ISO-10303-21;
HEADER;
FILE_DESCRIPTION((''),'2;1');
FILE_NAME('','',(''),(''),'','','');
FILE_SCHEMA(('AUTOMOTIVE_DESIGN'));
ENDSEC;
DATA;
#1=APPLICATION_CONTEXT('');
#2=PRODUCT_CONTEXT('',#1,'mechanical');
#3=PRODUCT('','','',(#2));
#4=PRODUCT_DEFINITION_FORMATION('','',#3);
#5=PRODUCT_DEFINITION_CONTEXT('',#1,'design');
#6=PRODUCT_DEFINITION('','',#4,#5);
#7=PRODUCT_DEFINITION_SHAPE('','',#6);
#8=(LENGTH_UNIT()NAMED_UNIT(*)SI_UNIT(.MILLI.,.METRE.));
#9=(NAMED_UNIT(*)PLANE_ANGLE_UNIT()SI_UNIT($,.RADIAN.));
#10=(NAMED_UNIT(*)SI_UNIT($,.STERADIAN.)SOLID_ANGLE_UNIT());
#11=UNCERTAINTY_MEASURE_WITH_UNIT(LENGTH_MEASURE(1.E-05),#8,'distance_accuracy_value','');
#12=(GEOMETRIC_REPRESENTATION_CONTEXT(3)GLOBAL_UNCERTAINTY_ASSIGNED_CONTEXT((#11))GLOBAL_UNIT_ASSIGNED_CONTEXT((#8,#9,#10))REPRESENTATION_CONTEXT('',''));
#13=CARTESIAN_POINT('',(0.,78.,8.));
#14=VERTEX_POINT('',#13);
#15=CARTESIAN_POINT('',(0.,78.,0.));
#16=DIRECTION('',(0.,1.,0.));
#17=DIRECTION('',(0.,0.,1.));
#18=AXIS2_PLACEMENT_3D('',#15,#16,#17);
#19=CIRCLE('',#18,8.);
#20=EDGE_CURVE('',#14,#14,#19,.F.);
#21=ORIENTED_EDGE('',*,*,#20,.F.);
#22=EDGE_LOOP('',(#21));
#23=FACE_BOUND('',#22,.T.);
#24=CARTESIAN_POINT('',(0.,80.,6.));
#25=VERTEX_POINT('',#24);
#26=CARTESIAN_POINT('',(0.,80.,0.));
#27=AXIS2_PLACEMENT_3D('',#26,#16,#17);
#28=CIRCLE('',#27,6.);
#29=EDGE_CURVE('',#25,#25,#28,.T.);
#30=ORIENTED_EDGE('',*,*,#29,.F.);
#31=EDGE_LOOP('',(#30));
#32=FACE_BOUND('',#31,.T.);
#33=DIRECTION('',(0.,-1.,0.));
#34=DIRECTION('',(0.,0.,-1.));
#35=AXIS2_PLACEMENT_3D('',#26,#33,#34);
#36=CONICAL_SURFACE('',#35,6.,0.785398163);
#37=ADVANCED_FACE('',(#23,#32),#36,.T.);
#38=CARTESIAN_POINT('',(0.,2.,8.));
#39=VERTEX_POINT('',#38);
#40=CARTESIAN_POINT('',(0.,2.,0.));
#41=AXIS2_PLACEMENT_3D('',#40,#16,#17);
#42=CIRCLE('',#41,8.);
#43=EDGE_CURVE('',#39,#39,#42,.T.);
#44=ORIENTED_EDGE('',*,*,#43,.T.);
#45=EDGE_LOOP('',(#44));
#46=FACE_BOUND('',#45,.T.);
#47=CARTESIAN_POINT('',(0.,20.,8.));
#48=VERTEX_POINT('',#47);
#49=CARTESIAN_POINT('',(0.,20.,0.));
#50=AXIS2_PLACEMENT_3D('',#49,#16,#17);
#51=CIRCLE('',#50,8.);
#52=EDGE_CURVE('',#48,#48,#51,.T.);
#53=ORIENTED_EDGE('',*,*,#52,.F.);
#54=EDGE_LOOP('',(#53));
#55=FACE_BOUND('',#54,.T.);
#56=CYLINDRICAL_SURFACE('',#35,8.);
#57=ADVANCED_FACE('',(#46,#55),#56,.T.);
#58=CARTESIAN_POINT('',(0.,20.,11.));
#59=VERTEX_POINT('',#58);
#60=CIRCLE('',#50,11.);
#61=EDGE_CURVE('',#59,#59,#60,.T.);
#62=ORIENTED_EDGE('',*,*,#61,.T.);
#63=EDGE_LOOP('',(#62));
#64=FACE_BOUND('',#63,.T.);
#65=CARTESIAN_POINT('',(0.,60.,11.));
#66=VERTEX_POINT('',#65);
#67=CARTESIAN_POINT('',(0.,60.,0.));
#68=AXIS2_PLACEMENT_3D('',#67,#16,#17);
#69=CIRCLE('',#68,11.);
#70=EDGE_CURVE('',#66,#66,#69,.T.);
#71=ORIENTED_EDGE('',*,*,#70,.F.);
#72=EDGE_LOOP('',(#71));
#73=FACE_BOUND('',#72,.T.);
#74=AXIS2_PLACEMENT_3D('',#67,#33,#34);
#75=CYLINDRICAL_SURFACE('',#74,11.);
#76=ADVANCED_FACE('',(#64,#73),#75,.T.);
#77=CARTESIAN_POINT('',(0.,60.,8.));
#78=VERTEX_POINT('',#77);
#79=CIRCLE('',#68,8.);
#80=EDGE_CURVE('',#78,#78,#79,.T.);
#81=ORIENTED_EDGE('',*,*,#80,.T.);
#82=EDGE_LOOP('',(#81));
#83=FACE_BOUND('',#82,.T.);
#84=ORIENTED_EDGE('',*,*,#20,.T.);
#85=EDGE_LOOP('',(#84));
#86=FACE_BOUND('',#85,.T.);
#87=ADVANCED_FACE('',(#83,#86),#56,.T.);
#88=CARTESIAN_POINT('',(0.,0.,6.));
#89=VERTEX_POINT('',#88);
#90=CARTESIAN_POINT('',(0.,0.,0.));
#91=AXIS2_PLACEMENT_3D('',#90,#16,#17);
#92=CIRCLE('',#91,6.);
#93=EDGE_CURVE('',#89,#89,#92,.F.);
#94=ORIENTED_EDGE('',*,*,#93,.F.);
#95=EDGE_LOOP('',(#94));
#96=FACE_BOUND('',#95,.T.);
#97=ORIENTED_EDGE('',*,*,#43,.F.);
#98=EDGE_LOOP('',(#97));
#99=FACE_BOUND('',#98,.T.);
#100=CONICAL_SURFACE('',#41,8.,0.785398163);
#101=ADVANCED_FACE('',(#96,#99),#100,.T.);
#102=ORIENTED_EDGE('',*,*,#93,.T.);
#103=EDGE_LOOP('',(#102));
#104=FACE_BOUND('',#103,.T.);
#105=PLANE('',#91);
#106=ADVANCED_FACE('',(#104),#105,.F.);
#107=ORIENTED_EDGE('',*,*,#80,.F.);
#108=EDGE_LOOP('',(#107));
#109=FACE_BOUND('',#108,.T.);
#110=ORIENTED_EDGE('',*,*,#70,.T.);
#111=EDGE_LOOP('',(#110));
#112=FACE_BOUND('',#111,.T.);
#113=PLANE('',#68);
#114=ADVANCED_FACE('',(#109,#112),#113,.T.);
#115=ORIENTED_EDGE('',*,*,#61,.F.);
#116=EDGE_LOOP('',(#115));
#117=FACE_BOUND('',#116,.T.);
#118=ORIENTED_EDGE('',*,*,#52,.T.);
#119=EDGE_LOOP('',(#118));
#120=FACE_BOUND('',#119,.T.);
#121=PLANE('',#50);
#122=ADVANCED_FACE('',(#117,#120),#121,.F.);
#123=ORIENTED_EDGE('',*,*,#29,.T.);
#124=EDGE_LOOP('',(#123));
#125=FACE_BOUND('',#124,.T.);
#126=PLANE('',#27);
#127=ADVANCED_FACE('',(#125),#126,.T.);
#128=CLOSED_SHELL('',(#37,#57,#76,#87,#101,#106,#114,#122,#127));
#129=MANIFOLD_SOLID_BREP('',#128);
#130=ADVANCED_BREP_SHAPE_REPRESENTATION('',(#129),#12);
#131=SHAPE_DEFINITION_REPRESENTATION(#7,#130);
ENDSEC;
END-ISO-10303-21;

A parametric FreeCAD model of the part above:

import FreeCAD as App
import Part
import Sketcher
from FreeCAD import Vector
Q = App.Units.Quantity


def edges_at(feature, points):
    """Names of the edges that pass closest to the given points."""
    edges = feature.Shape.Edges
    near = lambda p: min(range(len(edges)), key=lambda i: edges[i].distToShape(Part.Vertex(*p))[0])
    return sorted({f"Edge{near(p) + 1}" for p in points})

doc = App.newDocument("Part")
params = doc.addObject("Spreadsheet::Sheet", "Params")
for row, (alias, value) in enumerate([
    ("sketch1_diameter", "16 mm"),
    ("pad1_length", "80 mm"),
    ("sketch2_diameter", "22 mm"),
    ("pad2_length", "40 mm"),
    ("chamfer_size", "2 mm"),
    ("chamfer2_size", "2 mm"),
], start=1):
    params.set(f"A{row}", alias)
    params.set(f"B{row}", "=" + value)
    params.setAlias(f"B{row}", alias)

body = doc.addObject("PartDesign::Body", "Body")

sketch1 = body.newObject("Sketcher::SketchObject", "Sketch")
sketch1.AttachmentSupport = (doc.getObject("XZ_Plane"), [""])
sketch1.MapMode = "FlatFace"
sketch1.addGeometry(Part.Circle(Vector(0, 0, 0), Vector(0, 0, 1), 8), False)
sketch1.addConstraint([
    Sketcher.Constraint("Coincident", 0, 3, -1, 1),
    Sketcher.Constraint("Diameter", 0, Q("16 mm")),
])
sketch1.setExpression("Constraints[1]", "Params.sketch1_diameter")
pad1 = body.newObject("PartDesign::Pad", "Pad")
pad1.Profile = sketch1
pad1.setExpression("Length", "Params.pad1_length")
pad1.Reversed = True

sketch2 = body.newObject("Sketcher::SketchObject", "Sketch001")
sketch2.AttachmentSupport = (doc.getObject("XZ_Plane"), [""])
sketch2.MapMode = "FlatFace"
sketch2.AttachmentOffset = App.Placement(Vector(0, 0, -40), App.Rotation())
sketch2.addGeometry(Part.Circle(Vector(0, 0, 0), Vector(0, 0, 1), 11), False)
sketch2.addConstraint([
    Sketcher.Constraint("Coincident", 0, 3, -1, 1),
    Sketcher.Constraint("Diameter", 0, Q("22 mm")),
])
sketch2.setExpression("Constraints[1]", "Params.sketch2_diameter")
pad2 = body.newObject("PartDesign::Pad", "Pad001")
pad2.Profile = sketch2
pad2.setExpression("Length", "Params.pad2_length")
pad2.Midplane = True
doc.recompute()

chamfer = body.newObject("PartDesign::Chamfer", "Chamfer")
chamfer.Base = (pad2, edges_at(pad2, [(-8, 80, 0)]))
chamfer.setExpression("Size", "Params.chamfer_size")
doc.recompute()

chamfer2 = body.newObject("PartDesign::Chamfer", "Chamfer001")
chamfer2.Base = (chamfer, edges_at(chamfer, [(-8, 0, 0)]))
chamfer2.setExpression("Size", "Params.chamfer2_size")

doc.recompute()
